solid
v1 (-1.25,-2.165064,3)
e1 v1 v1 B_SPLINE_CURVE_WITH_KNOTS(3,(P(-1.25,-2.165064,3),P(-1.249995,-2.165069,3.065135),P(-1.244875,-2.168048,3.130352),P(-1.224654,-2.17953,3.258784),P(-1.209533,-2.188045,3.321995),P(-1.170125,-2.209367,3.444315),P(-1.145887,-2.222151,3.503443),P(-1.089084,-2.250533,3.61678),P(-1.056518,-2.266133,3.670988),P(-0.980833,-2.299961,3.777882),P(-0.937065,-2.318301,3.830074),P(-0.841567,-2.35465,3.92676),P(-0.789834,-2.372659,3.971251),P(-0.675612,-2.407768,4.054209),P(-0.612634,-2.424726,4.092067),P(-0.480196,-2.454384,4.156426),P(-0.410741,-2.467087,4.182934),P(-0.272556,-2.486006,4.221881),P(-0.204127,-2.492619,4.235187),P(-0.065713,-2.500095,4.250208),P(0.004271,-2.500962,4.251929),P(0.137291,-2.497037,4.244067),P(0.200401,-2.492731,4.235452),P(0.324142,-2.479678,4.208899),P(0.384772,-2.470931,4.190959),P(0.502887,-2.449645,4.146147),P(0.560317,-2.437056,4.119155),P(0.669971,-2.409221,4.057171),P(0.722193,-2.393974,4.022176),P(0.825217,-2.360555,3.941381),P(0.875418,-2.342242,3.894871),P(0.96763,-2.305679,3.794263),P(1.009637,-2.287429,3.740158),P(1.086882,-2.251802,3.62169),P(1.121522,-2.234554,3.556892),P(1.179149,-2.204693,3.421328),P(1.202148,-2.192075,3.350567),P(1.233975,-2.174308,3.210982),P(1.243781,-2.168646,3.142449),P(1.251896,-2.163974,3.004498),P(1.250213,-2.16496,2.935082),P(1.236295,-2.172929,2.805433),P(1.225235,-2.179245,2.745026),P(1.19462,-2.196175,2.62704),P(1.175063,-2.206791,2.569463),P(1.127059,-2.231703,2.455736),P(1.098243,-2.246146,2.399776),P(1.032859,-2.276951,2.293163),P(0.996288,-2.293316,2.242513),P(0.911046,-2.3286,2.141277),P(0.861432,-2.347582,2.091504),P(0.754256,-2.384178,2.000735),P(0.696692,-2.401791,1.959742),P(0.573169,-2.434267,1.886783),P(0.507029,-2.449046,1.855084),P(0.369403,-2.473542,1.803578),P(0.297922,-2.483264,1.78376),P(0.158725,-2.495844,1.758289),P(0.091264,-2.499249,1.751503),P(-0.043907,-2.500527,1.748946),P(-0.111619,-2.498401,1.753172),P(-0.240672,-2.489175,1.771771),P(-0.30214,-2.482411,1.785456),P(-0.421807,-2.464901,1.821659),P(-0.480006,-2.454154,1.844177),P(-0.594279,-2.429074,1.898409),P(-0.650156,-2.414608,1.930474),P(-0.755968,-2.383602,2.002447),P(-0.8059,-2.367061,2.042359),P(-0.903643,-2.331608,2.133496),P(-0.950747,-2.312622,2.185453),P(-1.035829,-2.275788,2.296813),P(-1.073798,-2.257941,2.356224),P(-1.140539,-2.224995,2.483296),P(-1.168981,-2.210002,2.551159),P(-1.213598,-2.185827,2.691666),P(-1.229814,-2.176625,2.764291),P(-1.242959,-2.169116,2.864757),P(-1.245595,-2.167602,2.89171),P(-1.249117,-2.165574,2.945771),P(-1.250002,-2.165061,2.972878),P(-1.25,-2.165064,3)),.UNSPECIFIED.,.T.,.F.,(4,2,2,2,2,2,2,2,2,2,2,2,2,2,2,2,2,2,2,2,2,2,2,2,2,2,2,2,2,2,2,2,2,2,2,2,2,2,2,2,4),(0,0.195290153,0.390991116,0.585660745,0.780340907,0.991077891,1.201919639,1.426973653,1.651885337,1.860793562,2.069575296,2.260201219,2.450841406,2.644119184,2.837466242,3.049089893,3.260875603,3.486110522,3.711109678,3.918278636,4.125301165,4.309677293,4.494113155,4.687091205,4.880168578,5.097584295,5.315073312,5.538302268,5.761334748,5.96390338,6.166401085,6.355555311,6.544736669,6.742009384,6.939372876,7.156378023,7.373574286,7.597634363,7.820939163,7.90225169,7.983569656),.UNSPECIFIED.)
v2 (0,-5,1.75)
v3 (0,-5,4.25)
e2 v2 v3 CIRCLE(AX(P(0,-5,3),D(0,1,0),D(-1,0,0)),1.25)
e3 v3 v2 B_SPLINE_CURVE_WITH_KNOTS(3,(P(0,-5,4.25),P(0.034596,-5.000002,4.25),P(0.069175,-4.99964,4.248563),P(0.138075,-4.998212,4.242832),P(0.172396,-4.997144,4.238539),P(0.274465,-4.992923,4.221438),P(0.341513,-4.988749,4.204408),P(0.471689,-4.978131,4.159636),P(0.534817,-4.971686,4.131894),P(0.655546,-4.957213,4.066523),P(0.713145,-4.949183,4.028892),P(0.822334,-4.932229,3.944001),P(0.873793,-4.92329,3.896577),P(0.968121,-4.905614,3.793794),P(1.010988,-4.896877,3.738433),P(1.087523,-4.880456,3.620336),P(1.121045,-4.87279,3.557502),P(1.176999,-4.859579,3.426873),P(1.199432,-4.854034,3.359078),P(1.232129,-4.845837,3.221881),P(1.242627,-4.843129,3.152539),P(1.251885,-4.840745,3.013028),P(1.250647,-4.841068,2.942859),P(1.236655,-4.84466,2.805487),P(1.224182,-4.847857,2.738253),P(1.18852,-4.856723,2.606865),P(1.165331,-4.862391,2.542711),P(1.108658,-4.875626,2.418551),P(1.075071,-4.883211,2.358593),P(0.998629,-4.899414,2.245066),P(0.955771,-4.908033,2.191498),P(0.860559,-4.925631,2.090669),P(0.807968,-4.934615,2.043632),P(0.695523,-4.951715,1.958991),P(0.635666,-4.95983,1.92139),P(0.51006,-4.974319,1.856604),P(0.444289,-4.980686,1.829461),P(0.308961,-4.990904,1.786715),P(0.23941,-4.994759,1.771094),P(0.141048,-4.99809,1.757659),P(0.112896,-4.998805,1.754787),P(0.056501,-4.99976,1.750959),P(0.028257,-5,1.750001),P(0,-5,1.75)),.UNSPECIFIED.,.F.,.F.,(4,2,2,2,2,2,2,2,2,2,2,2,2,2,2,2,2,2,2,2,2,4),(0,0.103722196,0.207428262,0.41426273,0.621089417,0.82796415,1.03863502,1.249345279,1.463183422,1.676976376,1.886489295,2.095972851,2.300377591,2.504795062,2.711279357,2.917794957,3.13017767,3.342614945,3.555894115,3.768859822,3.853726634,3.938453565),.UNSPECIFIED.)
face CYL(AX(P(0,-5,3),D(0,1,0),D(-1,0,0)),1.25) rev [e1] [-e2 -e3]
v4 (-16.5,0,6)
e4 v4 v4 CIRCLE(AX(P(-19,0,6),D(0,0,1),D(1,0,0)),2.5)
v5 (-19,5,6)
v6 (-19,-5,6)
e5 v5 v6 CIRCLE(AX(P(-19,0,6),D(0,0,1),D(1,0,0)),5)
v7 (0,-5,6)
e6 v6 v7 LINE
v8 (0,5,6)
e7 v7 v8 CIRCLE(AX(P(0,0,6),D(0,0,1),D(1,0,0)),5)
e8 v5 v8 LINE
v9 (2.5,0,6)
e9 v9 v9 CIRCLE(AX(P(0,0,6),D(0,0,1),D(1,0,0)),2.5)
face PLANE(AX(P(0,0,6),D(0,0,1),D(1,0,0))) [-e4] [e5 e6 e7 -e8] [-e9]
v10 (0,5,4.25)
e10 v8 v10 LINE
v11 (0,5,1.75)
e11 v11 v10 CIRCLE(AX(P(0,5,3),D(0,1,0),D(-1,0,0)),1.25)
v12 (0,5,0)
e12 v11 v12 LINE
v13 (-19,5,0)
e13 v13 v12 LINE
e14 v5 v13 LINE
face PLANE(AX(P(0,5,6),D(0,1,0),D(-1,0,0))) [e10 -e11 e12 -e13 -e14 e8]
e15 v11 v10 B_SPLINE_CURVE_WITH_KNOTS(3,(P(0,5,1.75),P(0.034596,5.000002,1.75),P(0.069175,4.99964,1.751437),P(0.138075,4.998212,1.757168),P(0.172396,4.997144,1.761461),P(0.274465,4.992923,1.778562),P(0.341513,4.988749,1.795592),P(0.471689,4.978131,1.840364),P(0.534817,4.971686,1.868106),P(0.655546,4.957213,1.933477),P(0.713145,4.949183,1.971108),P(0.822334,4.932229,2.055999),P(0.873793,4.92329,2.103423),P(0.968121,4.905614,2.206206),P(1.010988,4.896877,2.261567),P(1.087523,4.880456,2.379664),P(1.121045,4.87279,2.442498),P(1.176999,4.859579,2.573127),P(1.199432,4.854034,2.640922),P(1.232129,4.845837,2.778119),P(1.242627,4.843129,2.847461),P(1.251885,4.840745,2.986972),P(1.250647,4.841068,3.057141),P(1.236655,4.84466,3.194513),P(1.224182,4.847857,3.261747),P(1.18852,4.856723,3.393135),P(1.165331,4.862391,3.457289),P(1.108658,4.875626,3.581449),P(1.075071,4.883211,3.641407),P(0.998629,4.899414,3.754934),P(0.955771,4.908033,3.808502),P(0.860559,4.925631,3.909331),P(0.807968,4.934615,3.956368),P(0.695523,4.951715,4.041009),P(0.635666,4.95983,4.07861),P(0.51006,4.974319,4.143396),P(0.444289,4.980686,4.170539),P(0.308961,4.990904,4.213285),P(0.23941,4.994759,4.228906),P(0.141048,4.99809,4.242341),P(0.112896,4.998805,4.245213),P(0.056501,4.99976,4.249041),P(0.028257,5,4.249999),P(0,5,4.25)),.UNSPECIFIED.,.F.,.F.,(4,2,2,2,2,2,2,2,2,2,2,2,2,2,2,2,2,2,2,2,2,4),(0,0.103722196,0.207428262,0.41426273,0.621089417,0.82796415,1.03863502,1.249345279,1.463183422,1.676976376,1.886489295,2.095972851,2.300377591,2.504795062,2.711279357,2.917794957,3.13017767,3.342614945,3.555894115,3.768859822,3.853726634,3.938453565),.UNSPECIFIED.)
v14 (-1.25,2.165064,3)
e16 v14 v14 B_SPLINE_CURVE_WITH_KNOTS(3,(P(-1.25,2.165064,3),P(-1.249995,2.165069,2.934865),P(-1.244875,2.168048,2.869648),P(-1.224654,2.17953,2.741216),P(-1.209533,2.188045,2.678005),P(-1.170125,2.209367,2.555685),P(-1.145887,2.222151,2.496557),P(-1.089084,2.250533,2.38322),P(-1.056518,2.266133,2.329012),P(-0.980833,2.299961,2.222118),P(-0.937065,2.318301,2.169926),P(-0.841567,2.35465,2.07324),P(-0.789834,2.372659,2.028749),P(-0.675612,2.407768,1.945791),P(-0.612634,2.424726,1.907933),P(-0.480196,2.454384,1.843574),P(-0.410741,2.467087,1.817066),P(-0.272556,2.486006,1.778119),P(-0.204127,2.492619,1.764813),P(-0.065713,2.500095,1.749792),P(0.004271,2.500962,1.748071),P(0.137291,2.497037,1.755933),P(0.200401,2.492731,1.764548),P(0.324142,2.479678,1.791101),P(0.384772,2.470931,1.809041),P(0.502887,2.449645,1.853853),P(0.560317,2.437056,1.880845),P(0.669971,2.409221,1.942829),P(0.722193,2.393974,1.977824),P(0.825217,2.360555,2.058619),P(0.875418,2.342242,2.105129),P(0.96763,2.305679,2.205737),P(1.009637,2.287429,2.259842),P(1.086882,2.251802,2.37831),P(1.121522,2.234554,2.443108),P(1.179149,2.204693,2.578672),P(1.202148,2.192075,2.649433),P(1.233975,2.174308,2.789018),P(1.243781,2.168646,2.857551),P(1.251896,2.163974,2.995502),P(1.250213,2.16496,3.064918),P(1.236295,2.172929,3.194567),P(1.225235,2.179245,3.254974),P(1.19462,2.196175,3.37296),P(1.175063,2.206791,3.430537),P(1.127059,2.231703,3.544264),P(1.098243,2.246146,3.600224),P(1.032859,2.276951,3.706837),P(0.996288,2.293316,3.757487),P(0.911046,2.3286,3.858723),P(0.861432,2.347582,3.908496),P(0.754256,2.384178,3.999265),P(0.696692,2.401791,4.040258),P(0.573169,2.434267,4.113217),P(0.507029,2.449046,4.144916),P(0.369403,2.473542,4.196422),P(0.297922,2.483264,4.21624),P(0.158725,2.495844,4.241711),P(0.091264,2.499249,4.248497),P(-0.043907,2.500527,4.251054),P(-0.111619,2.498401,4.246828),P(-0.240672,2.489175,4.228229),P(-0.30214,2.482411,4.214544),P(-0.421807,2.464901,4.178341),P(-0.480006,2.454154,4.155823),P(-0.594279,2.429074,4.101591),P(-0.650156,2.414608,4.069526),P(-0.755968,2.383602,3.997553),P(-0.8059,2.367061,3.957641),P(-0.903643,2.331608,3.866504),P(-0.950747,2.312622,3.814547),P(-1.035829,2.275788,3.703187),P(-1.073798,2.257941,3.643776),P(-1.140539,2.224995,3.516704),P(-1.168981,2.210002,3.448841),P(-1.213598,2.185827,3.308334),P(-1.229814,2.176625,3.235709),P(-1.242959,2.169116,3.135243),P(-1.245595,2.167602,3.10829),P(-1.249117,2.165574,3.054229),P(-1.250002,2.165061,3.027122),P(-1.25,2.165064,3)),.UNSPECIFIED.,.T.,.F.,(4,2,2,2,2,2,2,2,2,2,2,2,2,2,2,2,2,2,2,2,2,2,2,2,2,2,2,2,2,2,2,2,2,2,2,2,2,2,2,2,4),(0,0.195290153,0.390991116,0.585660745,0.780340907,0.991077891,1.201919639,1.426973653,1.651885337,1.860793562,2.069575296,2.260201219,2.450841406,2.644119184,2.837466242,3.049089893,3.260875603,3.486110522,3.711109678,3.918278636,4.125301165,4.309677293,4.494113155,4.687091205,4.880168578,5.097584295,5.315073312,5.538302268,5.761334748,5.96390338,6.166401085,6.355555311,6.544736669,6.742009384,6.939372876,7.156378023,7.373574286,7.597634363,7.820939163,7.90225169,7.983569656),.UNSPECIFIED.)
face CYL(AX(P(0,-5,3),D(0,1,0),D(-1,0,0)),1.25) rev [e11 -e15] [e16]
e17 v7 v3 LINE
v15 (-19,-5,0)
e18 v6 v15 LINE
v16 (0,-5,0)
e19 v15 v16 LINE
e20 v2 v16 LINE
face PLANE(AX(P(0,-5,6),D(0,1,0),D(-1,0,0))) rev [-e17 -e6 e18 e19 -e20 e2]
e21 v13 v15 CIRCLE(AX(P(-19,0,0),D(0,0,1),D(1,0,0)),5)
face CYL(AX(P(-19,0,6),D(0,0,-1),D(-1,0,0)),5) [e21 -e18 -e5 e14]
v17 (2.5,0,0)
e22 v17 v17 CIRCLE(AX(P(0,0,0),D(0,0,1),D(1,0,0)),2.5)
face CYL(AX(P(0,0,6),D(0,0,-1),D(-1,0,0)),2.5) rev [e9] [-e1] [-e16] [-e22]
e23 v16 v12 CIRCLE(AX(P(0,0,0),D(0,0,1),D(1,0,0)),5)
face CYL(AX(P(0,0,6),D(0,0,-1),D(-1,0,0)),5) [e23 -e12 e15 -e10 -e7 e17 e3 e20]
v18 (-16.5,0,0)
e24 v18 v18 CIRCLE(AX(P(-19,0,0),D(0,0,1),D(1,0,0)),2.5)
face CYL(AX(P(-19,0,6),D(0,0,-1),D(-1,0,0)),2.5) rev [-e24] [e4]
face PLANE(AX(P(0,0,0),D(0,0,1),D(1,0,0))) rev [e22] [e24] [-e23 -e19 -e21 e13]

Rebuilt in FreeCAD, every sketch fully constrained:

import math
import FreeCAD as App
import Part
import Sketcher

V = App.Vector

doc = App.newDocument("Part")
body = doc.addObject("PartDesign::Body", "Body")

sketch1 = body.newObject("Sketcher::SketchObject", "Sketch")
sketch1.AttachmentSupport = (doc.getObject("XY_Plane"), [""])
sketch1.MapMode = "FlatFace"
sketch1.addGeometry([
    Part.LineSegment(V(0, 5, 0), V(-19, 5, 0)),
    Part.ArcOfCircle(Part.Circle(V(-19, 0, 0), V(0, 0, 1), 5), math.radians(90), math.radians(270)),
    Part.LineSegment(V(-19, -5, 0), V(0, -5, 0)),
    Part.ArcOfCircle(Part.Circle(V(0, 0, 0), V(0, 0, 1), 5), math.radians(-90), math.radians(90)),
    Part.Circle(V(-19, 0, 0), V(0, 0, 1), 2.5),
    Part.Circle(V(0, 0, 0), V(0, 0, 1), 2.5),
], False)
sketch1.addConstraint([
    Sketcher.Constraint("Tangent", 0, 2, 1, 1),
    Sketcher.Constraint("Tangent", 1, 2, 2, 1),
    Sketcher.Constraint("Tangent", 2, 2, 3, 1),
    Sketcher.Constraint("Tangent", 3, 2, 0, 1),
    Sketcher.Constraint("Horizontal", 0),
    Sketcher.Constraint("Horizontal", 2),
    Sketcher.Constraint("Coincident", 3, 3, -1, 1),
    Sketcher.Constraint("Coincident", 5, 3, -1, 1),
    Sketcher.Constraint("Coincident", 4, 3, 1, 3),
    Sketcher.Constraint("Equal", 4, 5),
    Sketcher.Constraint("Diameter", 4, 5.0),
    Sketcher.Constraint("Radius", 1, 5.0),
    Sketcher.Constraint("DistanceX", 0, 2, 0, 1, 19.0),
])
pad1 = body.newObject("PartDesign::Pad", "Pad")
pad1.Profile = sketch1
pad1.Length = 6

sketch2 = body.newObject("Sketcher::SketchObject", "Sketch001")
sketch2.AttachmentSupport = (doc.getObject("XZ_Plane"), [""])
sketch2.MapMode = "FlatFace"
sketch2.AttachmentOffset = App.Placement(V(0, 0, -5), App.Rotation())
sketch2.addGeometry(Part.Circle(V(0, 3, 0), V(0, 0, 1), 1.2), False)
sketch2.addConstraint([
    Sketcher.Constraint("PointOnObject", 0, 3, -2),
    Sketcher.Constraint("Diameter", 0, 2.5),
    Sketcher.Constraint("DistanceY", -1, 1, 0, 3, 3.0),
])
pocket1 = body.newObject("PartDesign::Pocket", "Pocket")
pocket1.Profile = sketch2
pocket1.Length = 10
pocket1.Reversed = True

doc.recompute()
